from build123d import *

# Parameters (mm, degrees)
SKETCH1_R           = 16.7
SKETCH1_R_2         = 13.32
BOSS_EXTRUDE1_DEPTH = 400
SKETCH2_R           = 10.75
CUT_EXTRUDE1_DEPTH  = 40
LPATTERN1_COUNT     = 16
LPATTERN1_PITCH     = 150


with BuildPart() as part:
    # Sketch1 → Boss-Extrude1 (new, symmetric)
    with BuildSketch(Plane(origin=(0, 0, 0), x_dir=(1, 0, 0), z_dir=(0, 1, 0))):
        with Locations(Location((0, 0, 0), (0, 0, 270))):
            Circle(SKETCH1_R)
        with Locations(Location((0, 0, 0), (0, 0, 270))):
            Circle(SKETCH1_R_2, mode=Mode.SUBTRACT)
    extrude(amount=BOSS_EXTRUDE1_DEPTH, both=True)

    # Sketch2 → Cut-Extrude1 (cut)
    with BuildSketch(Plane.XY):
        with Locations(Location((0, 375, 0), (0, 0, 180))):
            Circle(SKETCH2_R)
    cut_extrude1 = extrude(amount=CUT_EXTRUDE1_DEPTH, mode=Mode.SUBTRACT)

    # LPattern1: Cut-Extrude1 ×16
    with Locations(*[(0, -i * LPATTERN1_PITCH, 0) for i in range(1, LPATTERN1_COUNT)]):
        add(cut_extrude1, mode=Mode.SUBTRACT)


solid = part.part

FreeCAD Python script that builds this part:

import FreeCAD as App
import Part
import Sketcher
from FreeCAD import Vector

doc = App.newDocument("Part")
body = doc.addObject("PartDesign::Body", "Body")

sketch1 = doc.addObject("Sketcher::SketchObject", "Sketch")
body.addObject(sketch1)
sketch1.AttachmentSupport = (doc.XZ_Plane, [""])
sketch1.MapMode = "FlatFace"
sketch1.addGeometry([
    Part.Circle(Vector(0, 0, 0), Vector(0, 0, 1), 17),
    Part.Circle(Vector(0, 0, 0), Vector(0, 0, 1), 13),
], False)
sketch1.addConstraint([
    Sketcher.Constraint("Coincident", 0, 3, -1, 1),
    Sketcher.Constraint("Coincident", 1, 3, -1, 1),
    Sketcher.Constraint("Diameter", 0, 33.4),
    Sketcher.Constraint("Diameter", 1, 26.64),
])
pad1 = doc.addObject("PartDesign::Pad", "Pad")
body.addObject(pad1)
pad1.Profile = sketch1
pad1.Length = 800
pad1.Midplane = True

sketch2 = doc.addObject("Sketcher::SketchObject", "Sketch001")
body.addObject(sketch2)
sketch2.AttachmentSupport = (doc.XY_Plane, [""])
sketch2.MapMode = "FlatFace"
sketch2.addGeometry(Part.Circle(Vector(0, 375, 0), Vector(0, 0, 1), 11), False)
sketch2.addConstraint([
    Sketcher.Constraint("PointOnObject", 0, 3, -2),
    Sketcher.Constraint("Diameter", 0, 21.5),
    Sketcher.Constraint("DistanceY", -1, 1, 0, 3, 375.0),
])
pocket1 = doc.addObject("PartDesign::Pocket", "Pocket")
body.addObject(pocket1)
pocket1.Profile = sketch2
pocket1.Length = 40
pocket1.Reversed = True
doc.recompute()

linearpattern = doc.addObject("PartDesign::LinearPattern", "LinearPattern")
body.addObject(linearpattern)
linearpattern.Originals = [pocket1]
linearpattern.Direction = (doc.Y_Axis, [""])
linearpattern.Mode = "offset"
linearpattern.Offset = 150
linearpattern.Occurrences = 16
linearpattern.Reversed = True
body.Tip = linearpattern

doc.recompute()
